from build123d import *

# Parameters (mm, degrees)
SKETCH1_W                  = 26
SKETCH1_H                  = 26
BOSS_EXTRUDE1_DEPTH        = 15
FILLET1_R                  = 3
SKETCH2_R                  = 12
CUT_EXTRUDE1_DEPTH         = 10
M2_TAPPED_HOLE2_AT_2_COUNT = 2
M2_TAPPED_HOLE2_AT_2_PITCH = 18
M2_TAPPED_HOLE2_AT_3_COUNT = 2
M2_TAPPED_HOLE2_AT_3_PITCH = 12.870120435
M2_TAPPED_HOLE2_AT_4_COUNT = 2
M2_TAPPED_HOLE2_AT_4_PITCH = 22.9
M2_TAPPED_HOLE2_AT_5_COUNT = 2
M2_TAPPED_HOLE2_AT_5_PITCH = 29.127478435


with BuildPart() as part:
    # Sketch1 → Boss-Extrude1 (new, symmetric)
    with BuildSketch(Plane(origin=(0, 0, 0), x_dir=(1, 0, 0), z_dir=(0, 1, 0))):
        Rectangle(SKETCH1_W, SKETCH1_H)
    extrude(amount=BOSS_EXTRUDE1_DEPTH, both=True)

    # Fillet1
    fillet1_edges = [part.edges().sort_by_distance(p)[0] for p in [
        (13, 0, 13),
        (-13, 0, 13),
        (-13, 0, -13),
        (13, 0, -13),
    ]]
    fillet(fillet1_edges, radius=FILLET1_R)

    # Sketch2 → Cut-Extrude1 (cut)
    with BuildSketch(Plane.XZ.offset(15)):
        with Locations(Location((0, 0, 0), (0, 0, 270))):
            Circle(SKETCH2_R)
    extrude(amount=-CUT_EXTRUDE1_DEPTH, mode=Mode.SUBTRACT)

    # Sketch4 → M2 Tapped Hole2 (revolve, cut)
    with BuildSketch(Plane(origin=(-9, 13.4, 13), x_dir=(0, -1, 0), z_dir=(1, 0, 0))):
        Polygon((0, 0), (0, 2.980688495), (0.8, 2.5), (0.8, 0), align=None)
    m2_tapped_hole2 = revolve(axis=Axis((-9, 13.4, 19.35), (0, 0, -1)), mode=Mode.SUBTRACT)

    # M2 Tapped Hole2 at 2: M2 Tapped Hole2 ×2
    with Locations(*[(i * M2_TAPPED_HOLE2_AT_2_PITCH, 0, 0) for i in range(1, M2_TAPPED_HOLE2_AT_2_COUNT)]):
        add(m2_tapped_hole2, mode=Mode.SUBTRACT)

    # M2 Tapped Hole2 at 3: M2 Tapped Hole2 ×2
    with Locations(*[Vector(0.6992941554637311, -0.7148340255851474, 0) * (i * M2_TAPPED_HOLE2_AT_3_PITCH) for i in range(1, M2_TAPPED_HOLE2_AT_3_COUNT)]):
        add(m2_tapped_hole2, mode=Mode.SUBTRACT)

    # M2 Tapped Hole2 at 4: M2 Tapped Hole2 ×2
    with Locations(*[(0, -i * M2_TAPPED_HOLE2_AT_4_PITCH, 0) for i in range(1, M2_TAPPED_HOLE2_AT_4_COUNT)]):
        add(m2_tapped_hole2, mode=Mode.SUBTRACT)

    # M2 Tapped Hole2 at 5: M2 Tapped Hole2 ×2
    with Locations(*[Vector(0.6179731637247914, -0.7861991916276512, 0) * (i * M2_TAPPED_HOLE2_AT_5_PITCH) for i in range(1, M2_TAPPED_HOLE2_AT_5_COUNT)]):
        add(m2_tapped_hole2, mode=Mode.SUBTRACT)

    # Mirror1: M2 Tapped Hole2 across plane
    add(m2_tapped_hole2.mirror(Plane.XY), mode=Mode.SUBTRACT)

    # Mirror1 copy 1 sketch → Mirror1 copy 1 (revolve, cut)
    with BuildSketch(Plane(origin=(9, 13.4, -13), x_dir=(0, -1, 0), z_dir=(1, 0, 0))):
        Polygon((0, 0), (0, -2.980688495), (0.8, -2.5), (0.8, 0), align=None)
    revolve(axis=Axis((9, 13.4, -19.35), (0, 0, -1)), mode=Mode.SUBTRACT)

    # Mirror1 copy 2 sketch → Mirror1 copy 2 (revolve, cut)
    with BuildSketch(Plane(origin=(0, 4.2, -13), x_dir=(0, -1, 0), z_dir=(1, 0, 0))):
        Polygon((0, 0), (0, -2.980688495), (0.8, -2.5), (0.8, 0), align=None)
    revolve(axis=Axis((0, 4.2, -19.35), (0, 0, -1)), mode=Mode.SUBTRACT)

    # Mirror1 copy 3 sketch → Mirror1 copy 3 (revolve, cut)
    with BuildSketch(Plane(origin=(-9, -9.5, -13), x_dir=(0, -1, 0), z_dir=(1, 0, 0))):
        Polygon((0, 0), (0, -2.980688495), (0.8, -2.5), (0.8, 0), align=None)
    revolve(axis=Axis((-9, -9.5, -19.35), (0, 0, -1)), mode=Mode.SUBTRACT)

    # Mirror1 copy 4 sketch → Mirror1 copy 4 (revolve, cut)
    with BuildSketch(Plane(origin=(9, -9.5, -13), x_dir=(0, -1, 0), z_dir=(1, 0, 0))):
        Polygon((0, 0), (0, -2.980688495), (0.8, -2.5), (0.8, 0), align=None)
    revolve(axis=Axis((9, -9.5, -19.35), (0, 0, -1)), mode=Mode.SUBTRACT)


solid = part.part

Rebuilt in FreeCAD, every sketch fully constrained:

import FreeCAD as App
import Part
import Sketcher
from FreeCAD import Vector
Q = App.Units.Quantity


def edges_at(feature, points):
    """Names of the edges that pass closest to the given points."""
    edges = feature.Shape.Edges
    near = lambda p: min(range(len(edges)), key=lambda i: edges[i].distToShape(Part.Vertex(*p))[0])
    return sorted({f"Edge{near(p) + 1}" for p in points})


def add_polygon(sketch, points):
    """Adds a closed chain of lines whose ends are joined by coincident constraints."""
    first, n = sketch.GeometryCount, len(points)
    for a, b in zip(points, points[1:] + points[:1]):
        sketch.addGeometry(Part.LineSegment(App.Vector(*a, 0), App.Vector(*b, 0)), False)
    for i in range(n):
        sketch.addConstraint(Sketcher.Constraint("Coincident", first + i, 2, first + (i + 1) % n, 1))

doc = App.newDocument("Part")
params = doc.addObject("Spreadsheet::Sheet", "Params")
for row, (alias, value) in enumerate([
    ("sketch1_width", "26 mm"),
    ("pad1_length", "30 mm"),
    ("fillet_radius", "3 mm"),
    ("sketch2_diameter", "24 mm"),
    ("pocket1_length", "10 mm"),
    ("sketch3_width", "0.8 mm"),
    ("sketch3_height", "2.5 mm"),
    ("groove_angle", "360 deg"),
    ("linearpattern_pitch", "18 mm"),
    ("linearpattern2_pitch", "12.87012 mm"),
    ("linearpattern3_pitch", "22.9 mm"),
    ("linearpattern4_pitch", "29.127478 mm"),
    ("sketch4_width", "0.8 mm"),
    ("sketch4_height", "2.5 mm"),
    ("groove2_angle", "360 deg"),
    ("sketch5_width", "0.8 mm"),
    ("sketch5_height", "2.5 mm"),
    ("groove3_angle", "360 deg"),
    ("sketch6_width", "0.8 mm"),
    ("sketch6_height", "2.5 mm"),
    ("groove4_angle", "360 deg"),
    ("sketch7_width", "0.8 mm"),
    ("sketch7_height", "2.5 mm"),
    ("groove5_angle", "360 deg"),
], start=1):
    params.set(f"A{row}", alias)
    params.set(f"B{row}", "=" + value)
    params.setAlias(f"B{row}", alias)

body = doc.addObject("PartDesign::Body", "Body")

# Sketch on XZ plane
sketch1 = body.newObject("Sketcher::SketchObject", "Sketch")
sketch1.AttachmentSupport = (doc.getObject("XZ_Plane"), [""])
sketch1.MapMode = "FlatFace"
add_polygon(sketch1, [(-13, -13), (-13, 13), (13, 13), (13, -13)])  # lines 0-3
sketch1.addConstraint([
    Sketcher.Constraint("Vertical", 0),
    Sketcher.Constraint("Horizontal", 1),
    Sketcher.Constraint("Vertical", 2),
    Sketcher.Constraint("Horizontal", 3),
    Sketcher.Constraint("Symmetric", 0, 2, 2, 2, -1, 1),
    Sketcher.Constraint("Equal", 3, 0),
    Sketcher.Constraint("DistanceX", 1, 1, 1, 2, Q("26 mm")),
])
sketch1.setExpression("Constraints[10]", "Params.sketch1_width")
pad1 = body.newObject("PartDesign::Pad", "Pad")
pad1.Profile = sketch1
pad1.setExpression("Length", "Params.pad1_length")
pad1.Midplane = True
doc.recompute()

fillet = body.newObject("PartDesign::Fillet", "Fillet")
fillet.Base = (pad1, edges_at(pad1, [
    (13, 0, 13),
    (-13, 0, 13),
    (-13, 0, -13),
    (13, 0, -13),
]))
fillet.setExpression("Radius", "Params.fillet_radius")

# Sketch on XZ plane
sketch2 = body.newObject("Sketcher::SketchObject", "Sketch001")
sketch2.AttachmentSupport = (doc.getObject("XZ_Plane"), [""])
sketch2.MapMode = "FlatFace"
sketch2.AttachmentOffset = App.Placement(Vector(0, 0, 15), App.Rotation())
sketch2.addGeometry(Part.Circle(Vector(0, 0, 0), Vector(0, 0, 1), 12), False)
sketch2.addConstraint([
    Sketcher.Constraint("Coincident", 0, 3, -1, 1),
    Sketcher.Constraint("Diameter", 0, Q("24 mm")),
])
sketch2.setExpression("Constraints[1]", "Params.sketch2_diameter")
pocket1 = body.newObject("PartDesign::Pocket", "Pocket")
pocket1.Profile = sketch2
pocket1.setExpression("Length", "Params.pocket1_length")

# Sketch on YZ plane
sketch3 = body.newObject("Sketcher::SketchObject", "Sketch002")
sketch3.AttachmentSupport = (doc.getObject("YZ_Plane"), [""])
sketch3.MapMode = "FlatFace"
sketch3.AttachmentOffset = App.Placement(Vector(0, 0, -9), App.Rotation())
add_polygon(sketch3, [(13.4, 10), (13.4, 13), (12.6, 13), (12.6, 10.5)])  # lines 0-3
sketch3.addGeometry(Part.LineSegment(Vector(13.4, 13, 0), Vector(13.4, 10, 0)), True)  # axis
sketch3.addConstraint([
    Sketcher.Constraint("Vertical", 0),
    Sketcher.Constraint("Horizontal", 1),
    Sketcher.Constraint("Vertical", 2),
    Sketcher.Constraint("Vertical", 4),
    Sketcher.Constraint("Coincident", 4, 1, 0, 2),
    Sketcher.Constraint("Equal", 0, 4),
    Sketcher.Constraint("Angle", 3, Q("-31 deg")),
    Sketcher.Constraint("DistanceX", 1, 2, 1, 1, Q("0.8 mm")),
    Sketcher.Constraint("DistanceY", 2, 2, 2, 1, Q("2.5 mm")),
    Sketcher.Constraint("DistanceY", -1, 1, 0, 2, Q("13 mm")),
    Sketcher.Constraint("DistanceX", -1, 1, 0, 2, Q("13.4 mm")),
])
sketch3.setExpression("Constraints[11]", "Params.sketch3_width")
sketch3.setExpression("Constraints[12]", "Params.sketch3_height")
groove = body.newObject("PartDesign::Groove", "Groove")
groove.Profile = sketch3
groove.ReferenceAxis = (sketch3, ["Axis0"])
groove.setExpression("Angle", "Params.groove_angle")
doc.recompute()

linearpattern = body.newObject("PartDesign::LinearPattern", "LinearPattern")
linearpattern.Originals = [groove]
linearpattern.Direction = (doc.getObject("X_Axis"), [""])
linearpattern.Mode = "offset"
linearpattern.setExpression("Offset", "Params.linearpattern_pitch")
linearpattern.Occurrences = 2
body.Tip = linearpattern
doc.recompute()

datumline = body.newObject("PartDesign::Line", "DatumLine")
datumline.Placement = App.Placement(Vector(0, 0, 0), App.Rotation(Vector(0, 0, 1), Vector(0.699294155, -0.714834026, 0)))
linearpattern2 = body.newObject("PartDesign::LinearPattern", "LinearPattern001")
linearpattern2.Originals = [groove]
linearpattern2.Direction = (datumline, [""])
linearpattern2.Mode = "offset"
linearpattern2.setExpression("Offset", "Params.linearpattern2_pitch")
linearpattern2.Occurrences = 2
body.Tip = linearpattern2
doc.recompute()

linearpattern3 = body.newObject("PartDesign::LinearPattern", "LinearPattern002")
linearpattern3.Originals = [groove]
linearpattern3.Direction = (doc.getObject("Y_Axis"), [""])
linearpattern3.Mode = "offset"
linearpattern3.setExpression("Offset", "Params.linearpattern3_pitch")
linearpattern3.Occurrences = 2
linearpattern3.Reversed = True
body.Tip = linearpattern3
doc.recompute()

datumline2 = body.newObject("PartDesign::Line", "DatumLine001")
datumline2.Placement = App.Placement(Vector(0, 0, 0), App.Rotation(Vector(0, 0, 1), Vector(0.617973164, -0.786199192, 0)))
linearpattern4 = body.newObject("PartDesign::LinearPattern", "LinearPattern003")
linearpattern4.Originals = [groove]
linearpattern4.Direction = (datumline2, [""])
linearpattern4.Mode = "offset"
linearpattern4.setExpression("Offset", "Params.linearpattern4_pitch")
linearpattern4.Occurrences = 2
body.Tip = linearpattern4
doc.recompute()

mirrored = body.newObject("PartDesign::Mirrored", "Mirrored")
mirrored.Originals = [groove]
mirrored.MirrorPlane = (doc.getObject("XY_Plane"), [""])
body.Tip = mirrored

# Sketch on YZ plane
sketch4 = body.newObject("Sketcher::SketchObject", "Sketch003")
sketch4.AttachmentSupport = (doc.getObject("YZ_Plane"), [""])
sketch4.MapMode = "FlatFace"
sketch4.AttachmentOffset = App.Placement(Vector(0, 0, 9), App.Rotation())
add_polygon(sketch4, [(13.4, -13), (13.4, -10), (12.6, -10.5), (12.6, -13)])  # lines 0-3
sketch4.addGeometry(Part.LineSegment(Vector(13.4, -10, 0), Vector(13.4, -13, 0)), True)  # axis
sketch4.addConstraint([
    Sketcher.Constraint("Vertical", 0),
    Sketcher.Constraint("Vertical", 2),
    Sketcher.Constraint("Horizontal", 3),
    Sketcher.Constraint("Vertical", 4),
    Sketcher.Constraint("Coincident", 4, 1, 0, 2),
    Sketcher.Constraint("Horizontal", 2, 2, 4, 2),
    Sketcher.Constraint("Angle", 1, Q("-149 deg")),
    Sketcher.Constraint("DistanceX", 3, 1, 3, 2, Q("0.8 mm")),
    Sketcher.Constraint("DistanceY", 2, 2, 2, 1, Q("2.5 mm")),
    Sketcher.Constraint("DistanceY", 2, 2, -1, 1, Q("13 mm")),
    Sketcher.Constraint("DistanceX", -1, 1, 0, 2, Q("13.4 mm")),
])
sketch4.setExpression("Constraints[11]", "Params.sketch4_width")
sketch4.setExpression("Constraints[12]", "Params.sketch4_height")
groove2 = body.newObject("PartDesign::Groove", "Groove001")
groove2.Profile = sketch4
groove2.ReferenceAxis = (sketch4, ["Axis0"])
groove2.setExpression("Angle", "Params.groove2_angle")

# Sketch on YZ plane
sketch5 = body.newObject("Sketcher::SketchObject", "Sketch004")
sketch5.AttachmentSupport = (doc.getObject("YZ_Plane"), [""])
sketch5.MapMode = "FlatFace"
add_polygon(sketch5, [(4.2, -13), (4.2, -10), (3.4, -10.5), (3.4, -13)])  # lines 0-3
sketch5.addGeometry(Part.LineSegment(Vector(4.2, -10, 0), Vector(4.2, -13, 0)), True)  # axis
sketch5.addConstraint([
    Sketcher.Constraint("Vertical", 0),
    Sketcher.Constraint("Vertical", 2),
    Sketcher.Constraint("Horizontal", 3),
    Sketcher.Constraint("Vertical", 4),
    Sketcher.Constraint("Coincident", 4, 1, 0, 2),
    Sketcher.Constraint("Horizontal", 2, 2, 4, 2),
    Sketcher.Constraint("Angle", 1, Q("-149 deg")),
    Sketcher.Constraint("DistanceX", 3, 1, 3, 2, Q("0.8 mm")),
    Sketcher.Constraint("DistanceY", 2, 2, 2, 1, Q("2.5 mm")),
    Sketcher.Constraint("DistanceY", 2, 2, -1, 1, Q("13 mm")),
    Sketcher.Constraint("DistanceX", -1, 1, 0, 2, Q("4.2 mm")),
])
sketch5.setExpression("Constraints[11]", "Params.sketch5_width")
sketch5.setExpression("Constraints[12]", "Params.sketch5_height")
groove3 = body.newObject("PartDesign::Groove", "Groove002")
groove3.Profile = sketch5
groove3.ReferenceAxis = (sketch5, ["Axis0"])
groove3.setExpression("Angle", "Params.groove3_angle")

# Sketch on YZ plane
sketch6 = body.newObject("Sketcher::SketchObject", "Sketch005")
sketch6.AttachmentSupport = (doc.getObject("YZ_Plane"), [""])
sketch6.MapMode = "FlatFace"
sketch6.AttachmentOffset = App.Placement(Vector(0, 0, -9), App.Rotation())
add_polygon(sketch6, [(-9.5, -13), (-9.5, -10), (-10.3, -10.5), (-10.3, -13)])  # lines 0-3
sketch6.addGeometry(Part.LineSegment(Vector(-9.5, -10, 0), Vector(-9.5, -13, 0)), True)  # axis
sketch6.addConstraint([
    Sketcher.Constraint("Vertical", 0),
    Sketcher.Constraint("Vertical", 2),
    Sketcher.Constraint("Horizontal", 3),
    Sketcher.Constraint("Vertical", 4),
    Sketcher.Constraint("Coincident", 4, 1, 0, 2),
    Sketcher.Constraint("Horizontal", 2, 2, 4, 2),
    Sketcher.Constraint("Angle", 1, Q("-149 deg")),
    Sketcher.Constraint("DistanceX", 3, 1, 3, 2, Q("0.8 mm")),
    Sketcher.Constraint("DistanceY", 2, 2, 2, 1, Q("2.5 mm")),
    Sketcher.Constraint("DistanceY", 2, 2, -1, 1, Q("13 mm")),
    Sketcher.Constraint("DistanceX", 0, 2, -1, 1, Q("9.5 mm")),
])
sketch6.setExpression("Constraints[11]", "Params.sketch6_width")
sketch6.setExpression("Constraints[12]", "Params.sketch6_height")
groove4 = body.newObject("PartDesign::Groove", "Groove003")
groove4.Profile = sketch6
groove4.ReferenceAxis = (sketch6, ["Axis0"])
groove4.setExpression("Angle", "Params.groove4_angle")

# Sketch on YZ plane
sketch7 = body.newObject("Sketcher::SketchObject", "Sketch006")
sketch7.AttachmentSupport = (doc.getObject("YZ_Plane"), [""])
sketch7.MapMode = "FlatFace"
sketch7.AttachmentOffset = App.Placement(Vector(0, 0, 9), App.Rotation())
add_polygon(sketch7, [(-9.5, -13), (-9.5, -10), (-10.3, -10.5), (-10.3, -13)])  # lines 0-3
sketch7.addGeometry(Part.LineSegment(Vector(-9.5, -10, 0), Vector(-9.5, -13, 0)), True)  # axis
sketch7.addConstraint([
    Sketcher.Constraint("Vertical", 0),
    Sketcher.Constraint("Vertical", 2),
    Sketcher.Constraint("Horizontal", 3),
    Sketcher.Constraint("Vertical", 4),
    Sketcher.Constraint("Coincident", 4, 1, 0, 2),
    Sketcher.Constraint("Horizontal", 2, 2, 4, 2),
    Sketcher.Constraint("Angle", 1, Q("-149 deg")),
    Sketcher.Constraint("DistanceX", 3, 1, 3, 2, Q("0.8 mm")),
    Sketcher.Constraint("DistanceY", 2, 2, 2, 1, Q("2.5 mm")),
    Sketcher.Constraint("DistanceY", 2, 2, -1, 1, Q("13 mm")),
    Sketcher.Constraint("DistanceX", 0, 2, -1, 1, Q("9.5 mm")),
])
sketch7.setExpression("Constraints[11]", "Params.sketch7_width")
sketch7.setExpression("Constraints[12]", "Params.sketch7_height")
groove5 = body.newObject("PartDesign::Groove", "Groove004")
groove5.Profile = sketch7
groove5.ReferenceAxis = (sketch7, ["Axis0"])
groove5.setExpression("Angle", "Params.groove5_angle")

doc.recompute()
